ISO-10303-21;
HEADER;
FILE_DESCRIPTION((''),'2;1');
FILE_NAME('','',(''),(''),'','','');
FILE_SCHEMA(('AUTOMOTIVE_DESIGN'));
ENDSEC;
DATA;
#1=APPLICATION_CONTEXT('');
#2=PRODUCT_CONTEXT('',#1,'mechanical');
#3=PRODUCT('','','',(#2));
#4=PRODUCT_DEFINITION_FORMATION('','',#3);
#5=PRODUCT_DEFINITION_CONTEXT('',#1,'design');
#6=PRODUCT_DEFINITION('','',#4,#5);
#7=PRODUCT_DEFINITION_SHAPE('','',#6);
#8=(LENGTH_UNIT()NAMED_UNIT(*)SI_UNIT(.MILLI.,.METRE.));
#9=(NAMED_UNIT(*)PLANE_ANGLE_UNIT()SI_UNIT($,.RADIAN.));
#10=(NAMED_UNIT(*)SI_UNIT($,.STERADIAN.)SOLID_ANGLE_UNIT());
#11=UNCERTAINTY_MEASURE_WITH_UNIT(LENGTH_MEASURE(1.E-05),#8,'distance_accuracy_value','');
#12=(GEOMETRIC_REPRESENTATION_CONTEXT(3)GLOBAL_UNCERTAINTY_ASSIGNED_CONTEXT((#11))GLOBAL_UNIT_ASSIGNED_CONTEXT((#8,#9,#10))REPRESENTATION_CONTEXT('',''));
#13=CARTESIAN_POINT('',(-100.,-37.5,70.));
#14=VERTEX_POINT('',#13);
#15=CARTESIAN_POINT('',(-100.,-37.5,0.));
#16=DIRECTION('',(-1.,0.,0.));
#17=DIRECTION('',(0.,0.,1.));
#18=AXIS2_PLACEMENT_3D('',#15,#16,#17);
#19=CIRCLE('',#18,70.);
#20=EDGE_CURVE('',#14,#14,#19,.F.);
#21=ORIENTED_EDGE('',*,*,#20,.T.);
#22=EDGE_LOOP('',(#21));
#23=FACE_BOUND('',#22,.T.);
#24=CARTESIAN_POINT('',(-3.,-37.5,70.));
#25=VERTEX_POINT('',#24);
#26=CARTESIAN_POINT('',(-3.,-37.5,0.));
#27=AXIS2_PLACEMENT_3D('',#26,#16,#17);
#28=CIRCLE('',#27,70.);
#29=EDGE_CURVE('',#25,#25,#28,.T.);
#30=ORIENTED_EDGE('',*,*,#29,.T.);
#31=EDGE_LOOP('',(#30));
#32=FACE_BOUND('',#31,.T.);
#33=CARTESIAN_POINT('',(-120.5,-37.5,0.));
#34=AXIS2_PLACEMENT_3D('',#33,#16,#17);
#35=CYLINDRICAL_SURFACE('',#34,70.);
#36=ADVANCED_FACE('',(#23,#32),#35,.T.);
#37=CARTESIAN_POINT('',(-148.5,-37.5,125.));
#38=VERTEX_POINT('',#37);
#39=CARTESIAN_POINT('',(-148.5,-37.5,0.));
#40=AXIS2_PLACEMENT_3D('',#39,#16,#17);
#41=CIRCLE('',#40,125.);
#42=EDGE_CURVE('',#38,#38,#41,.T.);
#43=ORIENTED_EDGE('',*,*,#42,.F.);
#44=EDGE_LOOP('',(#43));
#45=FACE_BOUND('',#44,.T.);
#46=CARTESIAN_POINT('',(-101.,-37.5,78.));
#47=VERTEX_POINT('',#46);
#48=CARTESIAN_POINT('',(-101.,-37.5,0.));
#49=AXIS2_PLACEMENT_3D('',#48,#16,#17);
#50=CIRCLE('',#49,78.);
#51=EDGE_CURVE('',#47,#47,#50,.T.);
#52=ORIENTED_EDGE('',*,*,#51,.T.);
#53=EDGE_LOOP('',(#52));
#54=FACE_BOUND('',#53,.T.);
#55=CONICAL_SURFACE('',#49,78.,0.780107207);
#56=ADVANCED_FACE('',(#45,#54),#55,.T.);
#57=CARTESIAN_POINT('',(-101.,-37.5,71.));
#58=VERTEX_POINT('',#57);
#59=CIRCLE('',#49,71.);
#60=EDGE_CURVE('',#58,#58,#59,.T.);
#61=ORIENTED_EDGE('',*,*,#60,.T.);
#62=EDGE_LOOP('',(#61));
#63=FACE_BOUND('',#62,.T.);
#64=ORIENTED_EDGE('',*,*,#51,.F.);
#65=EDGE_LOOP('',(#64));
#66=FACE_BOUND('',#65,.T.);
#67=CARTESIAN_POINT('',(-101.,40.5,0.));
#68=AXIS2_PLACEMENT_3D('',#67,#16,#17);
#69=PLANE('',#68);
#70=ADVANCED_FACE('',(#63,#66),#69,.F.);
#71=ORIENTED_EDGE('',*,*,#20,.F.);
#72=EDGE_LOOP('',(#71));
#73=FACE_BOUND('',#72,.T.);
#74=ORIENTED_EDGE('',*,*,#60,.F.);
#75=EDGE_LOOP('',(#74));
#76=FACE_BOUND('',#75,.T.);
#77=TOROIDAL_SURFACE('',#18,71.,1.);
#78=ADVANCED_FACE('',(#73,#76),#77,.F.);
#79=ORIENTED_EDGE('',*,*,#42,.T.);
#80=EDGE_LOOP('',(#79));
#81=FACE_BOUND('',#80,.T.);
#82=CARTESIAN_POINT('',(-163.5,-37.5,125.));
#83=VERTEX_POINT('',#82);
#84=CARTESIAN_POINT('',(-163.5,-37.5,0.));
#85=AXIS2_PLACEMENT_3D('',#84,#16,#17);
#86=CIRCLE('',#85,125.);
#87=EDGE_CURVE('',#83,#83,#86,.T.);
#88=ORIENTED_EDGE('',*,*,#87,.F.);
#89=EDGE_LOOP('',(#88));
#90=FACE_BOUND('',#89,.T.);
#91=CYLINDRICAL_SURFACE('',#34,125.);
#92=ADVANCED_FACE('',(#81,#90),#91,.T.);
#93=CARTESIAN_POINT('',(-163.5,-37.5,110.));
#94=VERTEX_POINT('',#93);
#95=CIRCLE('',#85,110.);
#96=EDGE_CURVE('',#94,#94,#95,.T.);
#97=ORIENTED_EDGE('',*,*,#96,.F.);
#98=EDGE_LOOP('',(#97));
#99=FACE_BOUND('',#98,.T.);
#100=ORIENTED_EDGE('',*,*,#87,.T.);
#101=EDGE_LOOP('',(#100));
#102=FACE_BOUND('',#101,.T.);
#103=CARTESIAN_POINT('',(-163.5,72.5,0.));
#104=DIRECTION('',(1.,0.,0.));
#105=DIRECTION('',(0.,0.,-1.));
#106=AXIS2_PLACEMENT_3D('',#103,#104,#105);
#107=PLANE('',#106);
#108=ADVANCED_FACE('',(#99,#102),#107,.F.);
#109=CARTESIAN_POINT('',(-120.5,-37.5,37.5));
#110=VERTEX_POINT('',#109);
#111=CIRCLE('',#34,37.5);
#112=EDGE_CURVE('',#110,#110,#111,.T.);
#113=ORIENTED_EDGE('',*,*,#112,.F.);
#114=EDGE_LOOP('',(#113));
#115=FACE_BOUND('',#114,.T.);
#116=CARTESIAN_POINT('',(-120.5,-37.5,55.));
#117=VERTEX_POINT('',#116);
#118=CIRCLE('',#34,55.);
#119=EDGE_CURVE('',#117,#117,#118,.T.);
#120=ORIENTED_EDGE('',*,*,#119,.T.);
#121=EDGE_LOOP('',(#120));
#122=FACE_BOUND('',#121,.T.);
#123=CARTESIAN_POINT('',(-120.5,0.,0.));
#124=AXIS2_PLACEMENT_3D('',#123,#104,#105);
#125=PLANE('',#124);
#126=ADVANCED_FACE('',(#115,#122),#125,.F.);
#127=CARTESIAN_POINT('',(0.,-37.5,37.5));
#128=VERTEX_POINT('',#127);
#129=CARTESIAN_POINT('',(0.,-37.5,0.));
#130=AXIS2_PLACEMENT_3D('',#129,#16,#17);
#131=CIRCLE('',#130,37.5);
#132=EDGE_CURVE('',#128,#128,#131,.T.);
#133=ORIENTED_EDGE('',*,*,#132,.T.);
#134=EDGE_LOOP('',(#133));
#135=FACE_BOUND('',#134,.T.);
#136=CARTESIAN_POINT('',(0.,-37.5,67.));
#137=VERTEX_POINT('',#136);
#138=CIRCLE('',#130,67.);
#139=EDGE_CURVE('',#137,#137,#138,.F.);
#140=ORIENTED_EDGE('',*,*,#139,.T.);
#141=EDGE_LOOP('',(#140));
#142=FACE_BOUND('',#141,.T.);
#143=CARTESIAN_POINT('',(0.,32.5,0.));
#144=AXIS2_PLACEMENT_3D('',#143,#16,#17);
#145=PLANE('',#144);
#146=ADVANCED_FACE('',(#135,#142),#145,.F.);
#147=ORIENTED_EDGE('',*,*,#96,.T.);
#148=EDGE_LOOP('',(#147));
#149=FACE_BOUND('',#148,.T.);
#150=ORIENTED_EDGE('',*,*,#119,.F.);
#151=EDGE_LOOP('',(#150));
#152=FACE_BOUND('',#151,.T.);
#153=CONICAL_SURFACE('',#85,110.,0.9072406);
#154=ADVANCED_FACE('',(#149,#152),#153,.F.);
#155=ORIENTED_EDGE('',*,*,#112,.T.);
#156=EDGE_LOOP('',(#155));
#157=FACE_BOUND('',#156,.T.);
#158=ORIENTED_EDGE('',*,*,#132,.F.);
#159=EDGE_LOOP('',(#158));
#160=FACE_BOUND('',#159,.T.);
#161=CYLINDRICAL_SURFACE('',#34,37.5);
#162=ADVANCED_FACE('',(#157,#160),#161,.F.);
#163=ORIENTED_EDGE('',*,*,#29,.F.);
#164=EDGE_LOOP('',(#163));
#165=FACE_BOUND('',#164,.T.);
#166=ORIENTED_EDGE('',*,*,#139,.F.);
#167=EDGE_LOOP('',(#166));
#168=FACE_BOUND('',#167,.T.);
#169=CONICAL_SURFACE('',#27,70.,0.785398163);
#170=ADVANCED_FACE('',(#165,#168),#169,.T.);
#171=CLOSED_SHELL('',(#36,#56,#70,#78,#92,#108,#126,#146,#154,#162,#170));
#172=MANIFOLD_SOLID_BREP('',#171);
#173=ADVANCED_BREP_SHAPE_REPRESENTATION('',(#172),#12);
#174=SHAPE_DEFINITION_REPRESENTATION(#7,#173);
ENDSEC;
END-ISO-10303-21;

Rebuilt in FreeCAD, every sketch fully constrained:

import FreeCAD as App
import Part
import Sketcher
from FreeCAD import Vector


def edges_at(feature, points):
    """Names of the edges that pass closest to the given points."""
    edges = feature.Shape.Edges
    near = lambda p: min(range(len(edges)), key=lambda i: edges[i].distToShape(Part.Vertex(*p))[0])
    return sorted({f"Edge{near(p) + 1}" for p in points})

doc = App.newDocument("Part")
body = doc.addObject("PartDesign::Body", "Body")

# Sketch on XY plane
sketch1 = body.newObject("Sketcher::SketchObject", "Sketch")
sketch1.AttachmentSupport = (doc.getObject("XY_Plane"), [""])
sketch1.MapMode = "FlatFace"
sketch1.addGeometry(Part.LineSegment(Vector(-120, 0, 0), Vector(0, 0, 0)), False)
sketch1.addGeometry(Part.LineSegment(Vector(0, 0, 0), Vector(0, 32, 0)), False)
sketch1.addGeometry(Part.LineSegment(Vector(0, 32, 0), Vector(-101, 32, 0)), False)
sketch1.addGeometry(Part.LineSegment(Vector(-101, 32, 0), Vector(-101, 40, 0)), False)
sketch1.addGeometry(Part.LineSegment(Vector(-101, 40, 0), Vector(-148, 88, 0)), False)
sketch1.addGeometry(Part.LineSegment(Vector(-148, 88, 0), Vector(-164, 88, 0)), False)
sketch1.addGeometry(Part.LineSegment(Vector(-164, 88, 0), Vector(-164, 72, 0)), False)
sketch1.addGeometry(Part.LineSegment(Vector(-164, 72, 0), Vector(-120, 18, 0)), False)
sketch1.addGeometry(Part.LineSegment(Vector(-120, 18, 0), Vector(-120, 0, 0)), False)
sketch1.addGeometry(Part.LineSegment(Vector(-164, -38, 0), Vector(0, -38, 0)), True)  # axis
sketch1.addConstraint(Sketcher.Constraint("Coincident", 0, 2, 1, 1))
sketch1.addConstraint(Sketcher.Constraint("Coincident", 1, 2, 2, 1))
sketch1.addConstraint(Sketcher.Constraint("Coincident", 2, 2, 3, 1))
sketch1.addConstraint(Sketcher.Constraint("Coincident", 3, 2, 4, 1))
sketch1.addConstraint(Sketcher.Constraint("Coincident", 4, 2, 5, 1))
sketch1.addConstraint(Sketcher.Constraint("Coincident", 5, 2, 6, 1))
sketch1.addConstraint(Sketcher.Constraint("Coincident", 6, 2, 7, 1))
sketch1.addConstraint(Sketcher.Constraint("Coincident", 7, 2, 8, 1))
sketch1.addConstraint(Sketcher.Constraint("Coincident", 8, 2, 0, 1))
sketch1.addConstraint(Sketcher.Constraint("Horizontal", 0))
sketch1.addConstraint(Sketcher.Constraint("Vertical", 1))
sketch1.addConstraint(Sketcher.Constraint("Horizontal", 2))
sketch1.addConstraint(Sketcher.Constraint("Vertical", 3))
sketch1.addConstraint(Sketcher.Constraint("Horizontal", 5))
sketch1.addConstraint(Sketcher.Constraint("Vertical", 6))
sketch1.addConstraint(Sketcher.Constraint("Vertical", 8))
sketch1.addConstraint(Sketcher.Constraint("Horizontal", 9))
sketch1.addConstraint(Sketcher.Constraint("Coincident", 0, 2, -1, 1))
sketch1.addConstraint(Sketcher.Constraint("PointOnObject", 9, 2, -2))
sketch1.addConstraint(Sketcher.Constraint("Vertical", 6, 2, 9, 1))
sketch1.addConstraint(Sketcher.Constraint("Equal", 5, 6))
sketch1.addConstraint(Sketcher.Constraint("DistanceX", 2, 2, 2, 1, 101.0))
sketch1.addConstraint(Sketcher.Constraint("DistanceX", 5, 2, 5, 1, 15.0))
sketch1.addConstraint(Sketcher.Constraint("DistanceY", 3, 1, 3, 2, 8.0))
sketch1.addConstraint(Sketcher.Constraint("DistanceX", 0, 1, 0, 2, 120.5))
sketch1.addConstraint(Sketcher.Constraint("DistanceX", 9, 1, 9, 2, 163.5))
sketch1.addConstraint(Sketcher.Constraint("DistanceY", 1, 1, 1, 2, 32.5))
sketch1.addConstraint(Sketcher.Constraint("DistanceY", 8, 2, 8, 1, 17.5))
sketch1.addConstraint(Sketcher.Constraint("DistanceY", 3, 2, 4, 2, 47.0))
sketch1.addConstraint(Sketcher.Constraint("DistanceY", 9, 1, 7, 2, 55.0))
revolution = body.newObject("PartDesign::Revolution", "Revolution")
revolution.Profile = sketch1
revolution.ReferenceAxis = (sketch1, ["Axis0"])
revolution.Angle = 360
doc.recompute()

fillet = body.newObject("PartDesign::Fillet", "Fillet")
fillet.Base = (revolution, edges_at(revolution, [(-101, -37.5, -70)]))
fillet.Radius = 1
doc.recompute()

chamfer = body.newObject("PartDesign::Chamfer", "Chamfer")
chamfer.Base = (fillet, edges_at(fillet, [(0, -37.5, -70)]))
chamfer.Size = 3

doc.recompute()
